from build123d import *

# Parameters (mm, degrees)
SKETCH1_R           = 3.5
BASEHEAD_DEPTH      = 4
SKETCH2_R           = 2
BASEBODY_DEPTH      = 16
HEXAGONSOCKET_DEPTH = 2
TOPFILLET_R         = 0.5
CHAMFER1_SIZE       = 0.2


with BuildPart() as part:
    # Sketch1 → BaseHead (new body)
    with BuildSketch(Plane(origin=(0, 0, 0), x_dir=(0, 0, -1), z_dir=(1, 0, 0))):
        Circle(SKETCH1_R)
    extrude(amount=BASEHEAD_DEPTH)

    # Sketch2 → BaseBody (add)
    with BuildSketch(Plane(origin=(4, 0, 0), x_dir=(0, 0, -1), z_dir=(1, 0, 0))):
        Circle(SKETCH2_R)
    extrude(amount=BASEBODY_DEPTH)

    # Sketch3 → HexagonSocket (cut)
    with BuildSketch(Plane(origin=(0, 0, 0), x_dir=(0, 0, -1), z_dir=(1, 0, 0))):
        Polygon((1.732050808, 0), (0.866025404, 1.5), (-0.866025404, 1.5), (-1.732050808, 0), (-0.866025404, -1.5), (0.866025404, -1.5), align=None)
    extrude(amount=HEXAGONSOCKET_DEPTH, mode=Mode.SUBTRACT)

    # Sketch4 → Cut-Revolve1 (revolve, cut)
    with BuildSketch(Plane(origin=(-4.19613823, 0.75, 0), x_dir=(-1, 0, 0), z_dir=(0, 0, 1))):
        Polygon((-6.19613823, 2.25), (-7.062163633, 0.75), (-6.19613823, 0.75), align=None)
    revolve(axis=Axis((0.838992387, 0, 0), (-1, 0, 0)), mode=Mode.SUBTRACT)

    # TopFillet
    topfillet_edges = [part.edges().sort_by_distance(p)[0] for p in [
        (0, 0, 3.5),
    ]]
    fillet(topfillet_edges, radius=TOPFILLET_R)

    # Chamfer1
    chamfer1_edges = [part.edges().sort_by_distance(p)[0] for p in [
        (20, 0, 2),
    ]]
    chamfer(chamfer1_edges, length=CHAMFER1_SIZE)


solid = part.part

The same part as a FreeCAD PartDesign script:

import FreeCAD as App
import Part
import Sketcher

V = App.Vector
Q = App.Units.Quantity


def edges_at(feature, points):
    """Names of the edges that pass closest to the given points."""
    edges = feature.Shape.Edges
    near = lambda p: min(range(len(edges)), key=lambda i: edges[i].distToShape(Part.Vertex(*p))[0])
    return sorted({f"Edge{near(p) + 1}" for p in points})


def add_polygon(sketch, points):
    """Adds a closed chain of lines whose ends are joined by coincident constraints."""
    first, n = sketch.GeometryCount, len(points)
    for a, b in zip(points, points[1:] + points[:1]):
        sketch.addGeometry(Part.LineSegment(App.Vector(*a, 0), App.Vector(*b, 0)), False)
    for i in range(n):
        sketch.addConstraint(Sketcher.Constraint("Coincident", first + i, 2, first + (i + 1) % n, 1))

doc = App.newDocument("Part")
body = doc.addObject("PartDesign::Body", "Body")

# Sketch on YZ plane
sketch1 = doc.addObject("Sketcher::SketchObject", "Sketch")
body.addObject(sketch1)
sketch1.AttachmentSupport = (doc.YZ_Plane, [""])
sketch1.MapMode = "FlatFace"
sketch1.addGeometry(Part.Circle(V(0, 0, 0), V(0, 0, 1), 3.5), False)
sketch1.addConstraint([
    Sketcher.Constraint("Coincident", 0, 3, -1, 1),
    Sketcher.Constraint("Diameter", 0, 7.0),
])
pad1 = doc.addObject("PartDesign::Pad", "Pad")
body.addObject(pad1)
pad1.Profile = sketch1
pad1.Length = 4

# Sketch on YZ plane
sketch2 = doc.addObject("Sketcher::SketchObject", "Sketch001")
body.addObject(sketch2)
sketch2.AttachmentSupport = (doc.YZ_Plane, [""])
sketch2.MapMode = "FlatFace"
sketch2.AttachmentOffset = App.Placement(V(0, 0, 4), App.Rotation())
sketch2.addGeometry(Part.Circle(V(0, 0, 0), V(0, 0, 1), 2), False)
sketch2.addConstraint([
    Sketcher.Constraint("Coincident", 0, 3, -1, 1),
    Sketcher.Constraint("Diameter", 0, 4.0),
])
pad2 = doc.addObject("PartDesign::Pad", "Pad001")
body.addObject(pad2)
pad2.Profile = sketch2
pad2.Length = 16

# Sketch on YZ plane
sketch3 = doc.addObject("Sketcher::SketchObject", "Sketch002")
body.addObject(sketch3)
sketch3.AttachmentSupport = (doc.YZ_Plane, [""])
sketch3.MapMode = "FlatFace"
add_polygon(sketch3, [(0, -1.7), (1.5, -0.9), (1.5, 0.9), (0, 1.7), (-1.5, 0.9), (-1.5, -0.9)])  # lines 0-5
sketch3.addConstraint([
    Sketcher.Constraint("Vertical", 1),
    Sketcher.Constraint("Vertical", 4),
    Sketcher.Constraint("Symmetric", 0, 2, 3, 2, -1, 1),
    Sketcher.Constraint("Symmetric", 2, 2, 5, 2, -1, 1),
    Sketcher.Constraint("PointOnObject", 2, 2, -2),
    Sketcher.Constraint("Parallel", 2, 5),
    Sketcher.Constraint("Horizontal", 1, 2, 3, 2),
    Sketcher.Constraint("Angle", 0, Q("30 deg")),
    Sketcher.Constraint("DistanceX", 3, 2, 1, 2, 3.0),
    Sketcher.Constraint("DistanceY", 1, 1, 1, 2, 1.732051),
])
pocket1 = doc.addObject("PartDesign::Pocket", "Pocket")
body.addObject(pocket1)
pocket1.Profile = sketch3
pocket1.Length = 2
pocket1.Reversed = True

# Sketch on XY plane
sketch4 = doc.addObject("Sketcher::SketchObject", "Sketch003")
body.addObject(sketch4)
sketch4.AttachmentSupport = (doc.XY_Plane, [""])
sketch4.MapMode = "FlatFace"
add_polygon(sketch4, [(2, -1.5), (2.9, 0), (2, 0)])  # lines 0-2
sketch4.addConstraint([
    Sketcher.Constraint("Horizontal", 1),
    Sketcher.Constraint("Vertical", 2),
    Sketcher.Constraint("PointOnObject", 0, 2, -1),
    Sketcher.Constraint("Angle", 0, Q("60 deg")),
    Sketcher.Constraint("DistanceY", 2, 2, 2, 1, 1.5),
    Sketcher.Constraint("DistanceX", -1, 1, 1, 2, 2.0),
])
groove = doc.addObject("PartDesign::Groove", "Groove")
body.addObject(groove)
groove.Profile = sketch4
groove.ReferenceAxis = (sketch4, ["H_Axis"])
groove.Angle = 360
doc.recompute()

fillet = doc.addObject("PartDesign::Fillet", "Fillet")
body.addObject(fillet)
fillet.Base = (groove, edges_at(groove, [(0, 0, 3.5)]))
fillet.Radius = 0.5
doc.recompute()

chamfer = doc.addObject("PartDesign::Chamfer", "Chamfer")
body.addObject(chamfer)
chamfer.Base = (fillet, edges_at(fillet, [(20, 0, 2)]))
chamfer.Size = 0.2

doc.recompute()
